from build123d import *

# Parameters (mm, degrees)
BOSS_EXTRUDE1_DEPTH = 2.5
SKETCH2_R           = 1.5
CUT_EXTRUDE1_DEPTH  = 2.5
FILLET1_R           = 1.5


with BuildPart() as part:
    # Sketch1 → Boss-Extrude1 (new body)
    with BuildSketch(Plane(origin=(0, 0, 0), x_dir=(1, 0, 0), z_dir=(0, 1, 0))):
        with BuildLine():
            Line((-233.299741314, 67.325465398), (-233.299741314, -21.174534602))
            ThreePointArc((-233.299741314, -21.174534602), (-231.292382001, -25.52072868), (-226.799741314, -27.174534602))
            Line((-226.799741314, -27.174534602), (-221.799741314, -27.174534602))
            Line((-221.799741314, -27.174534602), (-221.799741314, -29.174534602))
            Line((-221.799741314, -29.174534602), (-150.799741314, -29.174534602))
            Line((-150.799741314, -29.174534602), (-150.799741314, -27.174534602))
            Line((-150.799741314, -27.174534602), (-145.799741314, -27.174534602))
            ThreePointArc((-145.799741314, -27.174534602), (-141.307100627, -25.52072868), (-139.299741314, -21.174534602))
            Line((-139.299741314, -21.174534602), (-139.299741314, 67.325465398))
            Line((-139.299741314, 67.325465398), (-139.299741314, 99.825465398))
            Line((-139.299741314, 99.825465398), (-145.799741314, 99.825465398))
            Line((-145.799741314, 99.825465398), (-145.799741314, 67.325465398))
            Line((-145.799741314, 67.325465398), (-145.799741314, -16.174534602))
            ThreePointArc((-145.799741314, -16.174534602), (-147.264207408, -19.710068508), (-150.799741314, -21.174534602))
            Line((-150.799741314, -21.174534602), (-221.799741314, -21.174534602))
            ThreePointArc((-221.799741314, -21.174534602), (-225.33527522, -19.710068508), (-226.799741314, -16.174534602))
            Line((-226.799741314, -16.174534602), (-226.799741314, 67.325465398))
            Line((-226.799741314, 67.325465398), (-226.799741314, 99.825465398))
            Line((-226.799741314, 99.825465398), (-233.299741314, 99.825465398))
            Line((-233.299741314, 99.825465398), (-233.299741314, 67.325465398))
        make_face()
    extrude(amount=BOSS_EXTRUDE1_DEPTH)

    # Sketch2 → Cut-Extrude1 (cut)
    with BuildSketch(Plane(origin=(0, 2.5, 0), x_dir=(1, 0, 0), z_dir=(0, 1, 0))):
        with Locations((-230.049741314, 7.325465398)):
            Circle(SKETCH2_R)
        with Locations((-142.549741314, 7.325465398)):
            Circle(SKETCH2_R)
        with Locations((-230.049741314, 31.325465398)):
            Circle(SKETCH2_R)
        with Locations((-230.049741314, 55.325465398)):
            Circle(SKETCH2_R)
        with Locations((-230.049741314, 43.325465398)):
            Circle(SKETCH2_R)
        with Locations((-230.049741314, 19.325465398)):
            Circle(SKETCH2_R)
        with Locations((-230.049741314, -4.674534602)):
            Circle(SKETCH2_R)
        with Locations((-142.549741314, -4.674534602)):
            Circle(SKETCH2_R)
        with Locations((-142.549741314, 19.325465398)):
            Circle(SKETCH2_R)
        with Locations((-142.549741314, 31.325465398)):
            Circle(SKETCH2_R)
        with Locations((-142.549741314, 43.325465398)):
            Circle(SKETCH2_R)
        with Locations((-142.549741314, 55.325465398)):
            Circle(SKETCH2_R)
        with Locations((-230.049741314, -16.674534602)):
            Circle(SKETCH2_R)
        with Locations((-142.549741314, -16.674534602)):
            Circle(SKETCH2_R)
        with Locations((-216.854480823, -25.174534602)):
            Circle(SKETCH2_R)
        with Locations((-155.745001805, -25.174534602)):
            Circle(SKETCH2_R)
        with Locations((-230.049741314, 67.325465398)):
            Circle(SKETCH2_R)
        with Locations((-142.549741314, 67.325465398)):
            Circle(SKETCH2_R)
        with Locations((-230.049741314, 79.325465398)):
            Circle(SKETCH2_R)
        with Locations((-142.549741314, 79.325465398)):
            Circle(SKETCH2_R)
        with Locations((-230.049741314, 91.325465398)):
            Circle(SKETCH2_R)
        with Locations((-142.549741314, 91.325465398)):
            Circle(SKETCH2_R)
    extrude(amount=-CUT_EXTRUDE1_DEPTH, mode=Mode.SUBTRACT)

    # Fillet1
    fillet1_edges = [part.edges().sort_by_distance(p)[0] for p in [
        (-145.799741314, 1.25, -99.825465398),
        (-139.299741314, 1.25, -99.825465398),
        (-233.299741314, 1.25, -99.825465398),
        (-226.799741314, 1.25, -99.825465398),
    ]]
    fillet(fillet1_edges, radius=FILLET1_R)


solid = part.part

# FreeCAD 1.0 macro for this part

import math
import FreeCAD as App
import Part
import Sketcher
Q = App.Units.Quantity


def edges_at(feature, points):
    """Names of the edges that pass closest to the given points."""
    edges = feature.Shape.Edges
    near = lambda p: min(range(len(edges)), key=lambda i: edges[i].distToShape(Part.Vertex(*p))[0])
    return sorted({f"Edge{near(p) + 1}" for p in points})

doc = App.newDocument("Part")
body = doc.addObject("PartDesign::Body", "Body")

# Sketch on XZ plane
sketch1 = doc.addObject("Sketcher::SketchObject", "Sketch")
body.addObject(sketch1)
sketch1.AttachmentSupport = (doc.XZ_Plane, [""])
sketch1.MapMode = "FlatFace"
sketch1.addGeometry([
    Part.ArcOfCircle(Part.Circle(App.Vector(-227, 20.9, 0), App.Vector(0, 0, 1), 6.3), math.radians(88), math.radians(178)),  # 0
    Part.LineSegment(App.Vector(-226.8, 27.2, 0), App.Vector(-221.8, 27.2, 0)),  # 1
    Part.LineSegment(App.Vector(-221.8, 27.2, 0), App.Vector(-221.8, 29.2, 0)),  # 2
    Part.LineSegment(App.Vector(-221.8, 29.2, 0), App.Vector(-150.8, 29.2, 0)),  # 3
    Part.LineSegment(App.Vector(-150.8, 29.2, 0), App.Vector(-150.8, 27.2, 0)),  # 4
    Part.LineSegment(App.Vector(-150.8, 27.2, 0), App.Vector(-145.8, 27.2, 0)),  # 5
    Part.ArcOfCircle(Part.Circle(App.Vector(-145.5, 20.9, 0), App.Vector(0, 0, 1), 6.3), math.radians(2), math.radians(92)),  # 6
    Part.LineSegment(App.Vector(-139.3, 21.2, 0), App.Vector(-139.3, -99.8, 0)),  # 7
    Part.LineSegment(App.Vector(-139.3, -99.8, 0), App.Vector(-145.8, -99.8, 0)),  # 8
    Part.LineSegment(App.Vector(-145.8, -99.8, 0), App.Vector(-145.8, 16.2, 0)),  # 9
    Part.ArcOfCircle(Part.Circle(App.Vector(-150.8, 16.2, 0), App.Vector(0, 0, 1), 5), math.radians(0), math.radians(90)),  # 10
    Part.LineSegment(App.Vector(-150.8, 21.2, 0), App.Vector(-221.8, 21.2, 0)),  # 11
    Part.ArcOfCircle(Part.Circle(App.Vector(-221.8, 16.2, 0), App.Vector(0, 0, 1), 5), math.radians(90), math.radians(180)),  # 12
    Part.LineSegment(App.Vector(-226.8, 16.2, 0), App.Vector(-226.8, -99.8, 0)),  # 13
    Part.LineSegment(App.Vector(-226.8, -99.8, 0), App.Vector(-233.3, -99.8, 0)),  # 14
    Part.LineSegment(App.Vector(-233.3, -99.8, 0), App.Vector(-233.3, 21.2, 0)),  # 15
], False)
sketch1.addConstraint([
    Sketcher.Constraint("Coincident", 0, 1, 1, 1),
    Sketcher.Constraint("Coincident", 1, 2, 2, 1),
    Sketcher.Constraint("Coincident", 2, 2, 3, 1),
    Sketcher.Constraint("Coincident", 3, 2, 4, 1),
    Sketcher.Constraint("Coincident", 4, 2, 5, 1),
    Sketcher.Constraint("Coincident", 5, 2, 6, 2),
    Sketcher.Constraint("Coincident", 6, 1, 7, 1),
    Sketcher.Constraint("Coincident", 7, 2, 8, 1),
    Sketcher.Constraint("Coincident", 8, 2, 9, 1),
    Sketcher.Constraint("Tangent", 9, 2, 10, 1),
    Sketcher.Constraint("Tangent", 10, 2, 11, 1),
    Sketcher.Constraint("Tangent", 11, 2, 12, 1),
    Sketcher.Constraint("Tangent", 12, 2, 13, 1),
    Sketcher.Constraint("Coincident", 13, 2, 14, 1),
    Sketcher.Constraint("Coincident", 14, 2, 15, 1),
    Sketcher.Constraint("Coincident", 15, 2, 0, 2),
    Sketcher.Constraint("Horizontal", 1),
    Sketcher.Constraint("Vertical", 2),
    Sketcher.Constraint("Horizontal", 3),
    Sketcher.Constraint("Vertical", 4),
    Sketcher.Constraint("Horizontal", 5),
    Sketcher.Constraint("Vertical", 7),
    Sketcher.Constraint("Horizontal", 8),
    Sketcher.Constraint("Vertical", 9),
    Sketcher.Constraint("Horizontal", 11),
    Sketcher.Constraint("Vertical", 13),
    Sketcher.Constraint("Horizontal", 14),
    Sketcher.Constraint("Vertical", 15),
    Sketcher.Constraint("Equal", 0, 6),
    Sketcher.Constraint("Equal", 10, 12),
    Sketcher.Constraint("Horizontal", 0, 3, 6, 3),
    Sketcher.Constraint("Horizontal", 1, 2, 4, 2),
    Sketcher.Constraint("Horizontal", 6, 1, 10, 2),
    Sketcher.Constraint("Horizontal", 8, 2, 13, 2),
    Sketcher.Constraint("Horizontal", 11, 2, 15, 2),
    Sketcher.Constraint("Vertical", 12, 3, 1, 2),
    Sketcher.Constraint("Vertical", 10, 3, 3, 2),
    Sketcher.Constraint("Vertical", 5, 2, 8, 2),
    Sketcher.Constraint("Vertical", 0, 1, 12, 2),
    Sketcher.Constraint("Radius", 10, Q("5 mm")),
    Sketcher.Constraint("DistanceX", 3, 1, 3, 2, Q("71 mm")),
    Sketcher.Constraint("DistanceY", 2, 1, 2, 2, Q("2 mm")),
    Sketcher.Constraint("DistanceY", 7, 2, 7, 1, Q("121 mm")),
    Sketcher.Constraint("DistanceX", 8, 2, 8, 1, Q("6.5 mm")),
    Sketcher.Constraint("Radius", 0, Q("6.254998 mm")),
    Sketcher.Constraint("DistanceY", 12, 3, 0, 1, Q("11 mm")),
    Sketcher.Constraint("DistanceX", 0, 3, -1, 1, Q("227.049741 mm")),
    Sketcher.Constraint("DistanceY", -1, 1, 0, 3, Q("20.924535 mm")),
])
pad1 = doc.addObject("PartDesign::Pad", "Pad")
body.addObject(pad1)
pad1.Profile = sketch1
pad1.Length = 2.5
pad1.Reversed = True

# Sketch on XZ plane
sketch2 = doc.addObject("Sketcher::SketchObject", "Sketch001")
body.addObject(sketch2)
sketch2.AttachmentSupport = (doc.XZ_Plane, [""])
sketch2.MapMode = "FlatFace"
sketch2.AttachmentOffset = App.Placement(App.Vector(0, 0, -2.5), App.Rotation())
sketch2.addGeometry([
    Part.Circle(App.Vector(-230, -7.3, 0), App.Vector(0, 0, 1), 1.5),  # 0
    Part.Circle(App.Vector(-142.5, -7.3, 0), App.Vector(0, 0, 1), 1.5),  # 1
    Part.Circle(App.Vector(-230, -31.3, 0), App.Vector(0, 0, 1), 1.5),  # 2
    Part.Circle(App.Vector(-230, -55.3, 0), App.Vector(0, 0, 1), 1.5),  # 3
    Part.Circle(App.Vector(-230, -43.3, 0), App.Vector(0, 0, 1), 1.5),  # 4
    Part.Circle(App.Vector(-230, -19.3, 0), App.Vector(0, 0, 1), 1.5),  # 5
    Part.Circle(App.Vector(-230, 4.7, 0), App.Vector(0, 0, 1), 1.5),  # 6
    Part.Circle(App.Vector(-142.5, 4.7, 0), App.Vector(0, 0, 1), 1.5),  # 7
    Part.Circle(App.Vector(-142.5, -19.3, 0), App.Vector(0, 0, 1), 1.5),  # 8
    Part.Circle(App.Vector(-142.5, -31.3, 0), App.Vector(0, 0, 1), 1.5),  # 9
    Part.Circle(App.Vector(-142.5, -43.3, 0), App.Vector(0, 0, 1), 1.5),  # 10
    Part.Circle(App.Vector(-142.5, -55.3, 0), App.Vector(0, 0, 1), 1.5),  # 11
    Part.Circle(App.Vector(-230, 16.7, 0), App.Vector(0, 0, 1), 1.5),  # 12
    Part.Circle(App.Vector(-142.5, 16.7, 0), App.Vector(0, 0, 1), 1.5),  # 13
    Part.Circle(App.Vector(-216.9, 25.2, 0), App.Vector(0, 0, 1), 1.5),  # 14
    Part.Circle(App.Vector(-155.7, 25.2, 0), App.Vector(0, 0, 1), 1.5),  # 15
    Part.Circle(App.Vector(-230, -67.3, 0), App.Vector(0, 0, 1), 1.5),  # 16
    Part.Circle(App.Vector(-142.5, -67.3, 0), App.Vector(0, 0, 1), 1.5),  # 17
    Part.Circle(App.Vector(-230, -79.3, 0), App.Vector(0, 0, 1), 1.5),  # 18
    Part.Circle(App.Vector(-142.5, -79.3, 0), App.Vector(0, 0, 1), 1.5),  # 19
    Part.Circle(App.Vector(-230, -91.3, 0), App.Vector(0, 0, 1), 1.5),  # 20
    Part.Circle(App.Vector(-142.5, -91.3, 0), App.Vector(0, 0, 1), 1.5),  # 21
], False)
sketch2.addConstraint([
    Sketcher.Constraint("Equal", 0, 1),
    Sketcher.Constraint("Equal", 1, 2),
    Sketcher.Constraint("Equal", 2, 3),
    Sketcher.Constraint("Equal", 3, 4),
    Sketcher.Constraint("Equal", 4, 5),
    Sketcher.Constraint("Equal", 5, 6),
    Sketcher.Constraint("Equal", 6, 7),
    Sketcher.Constraint("Equal", 7, 8),
    Sketcher.Constraint("Equal", 8, 9),
    Sketcher.Constraint("Equal", 9, 10),
    Sketcher.Constraint("Equal", 10, 11),
    Sketcher.Constraint("Equal", 11, 12),
    Sketcher.Constraint("Equal", 12, 13),
    Sketcher.Constraint("Equal", 13, 14),
    Sketcher.Constraint("Equal", 14, 15),
    Sketcher.Constraint("Equal", 15, 16),
    Sketcher.Constraint("Equal", 16, 17),
    Sketcher.Constraint("Equal", 17, 18),
    Sketcher.Constraint("Equal", 18, 19),
    Sketcher.Constraint("Equal", 19, 20),
    Sketcher.Constraint("Equal", 20, 21),
    Sketcher.Constraint("Horizontal", 0, 3, 1, 3),
    Sketcher.Constraint("Horizontal", 6, 3, 7, 3),
    Sketcher.Constraint("Horizontal", 5, 3, 8, 3),
    Sketcher.Constraint("Horizontal", 2, 3, 9, 3),
    Sketcher.Constraint("Horizontal", 4, 3, 10, 3),
    Sketcher.Constraint("Horizontal", 3, 3, 11, 3),
    Sketcher.Constraint("Horizontal", 12, 3, 13, 3),
    Sketcher.Constraint("Horizontal", 14, 3, 15, 3),
    Sketcher.Constraint("Horizontal", 16, 3, 17, 3),
    Sketcher.Constraint("Horizontal", 18, 3, 19, 3),
    Sketcher.Constraint("Horizontal", 20, 3, 21, 3),
    Sketcher.Constraint("Vertical", 0, 3, 2, 3),
    Sketcher.Constraint("Vertical", 2, 3, 3, 3),
    Sketcher.Constraint("Vertical", 3, 3, 4, 3),
    Sketcher.Constraint("Vertical", 4, 3, 5, 3),
    Sketcher.Constraint("Vertical", 5, 3, 6, 3),
    Sketcher.Constraint("Vertical", 1, 3, 7, 3),
    Sketcher.Constraint("Vertical", 7, 3, 8, 3),
    Sketcher.Constraint("Vertical", 8, 3, 9, 3),
    Sketcher.Constraint("Vertical", 9, 3, 10, 3),
    Sketcher.Constraint("Vertical", 10, 3, 11, 3),
    Sketcher.Constraint("Vertical", 6, 3, 12, 3),
    Sketcher.Constraint("Vertical", 11, 3, 13, 3),
    Sketcher.Constraint("Vertical", 12, 3, 16, 3),
    Sketcher.Constraint("Vertical", 13, 3, 17, 3),
    Sketcher.Constraint("Vertical", 16, 3, 18, 3),
    Sketcher.Constraint("Vertical", 17, 3, 19, 3),
    Sketcher.Constraint("Vertical", 18, 3, 20, 3),
    Sketcher.Constraint("Vertical", 19, 3, 21, 3),
    Sketcher.Constraint("Diameter", 0, Q("3 mm")),
    Sketcher.Constraint("DistanceY", 2, 3, 0, 3, Q("24 mm")),
    Sketcher.Constraint("DistanceY", 3, 3, 2, 3, Q("24 mm")),
    Sketcher.Constraint("DistanceY", 4, 3, 2, 3, Q("12 mm")),
    Sketcher.Constraint("DistanceY", 5, 3, 0, 3, Q("12 mm")),
    Sketcher.Constraint("DistanceY", 0, 3, 6, 3, Q("12 mm")),
    Sketcher.Constraint("DistanceY", 6, 3, 12, 3, Q("12 mm")),
    Sketcher.Constraint("DistanceY", 16, 3, 3, 3, Q("12 mm")),
    Sketcher.Constraint("DistanceY", 18, 3, 16, 3, Q("12 mm")),
    Sketcher.Constraint("DistanceY", 20, 3, 18, 3, Q("12 mm")),
    Sketcher.Constraint("DistanceX", 0, 3, 1, 3, Q("87.5 mm")),
    Sketcher.Constraint("DistanceY", 12, 3, 14, 3, Q("8.5 mm")),
    Sketcher.Constraint("DistanceX", 15, 3, -1, 1, Q("155.745002 mm")),
    Sketcher.Constraint("DistanceX", 0, 3, -1, 1, Q("230.049741 mm")),
    Sketcher.Constraint("DistanceX", 14, 3, -1, 1, Q("216.854481 mm")),
    Sketcher.Constraint("DistanceY", 0, 3, -1, 1, Q("7.325465 mm")),
])
pocket1 = doc.addObject("PartDesign::Pocket", "Pocket")
body.addObject(pocket1)
pocket1.Profile = sketch2
pocket1.Length = 2.5
pocket1.Reversed = True
doc.recompute()

fillet = doc.addObject("PartDesign::Fillet", "Fillet")
body.addObject(fillet)
fillet.Base = (pocket1, edges_at(pocket1, [
    (-145.8, 1.25, -99.825),
    (-139.3, 1.25, -99.825),
    (-233.3, 1.25, -99.825),
    (-226.8, 1.25, -99.825),
]))
fillet.Radius = 1.5

doc.recompute()
